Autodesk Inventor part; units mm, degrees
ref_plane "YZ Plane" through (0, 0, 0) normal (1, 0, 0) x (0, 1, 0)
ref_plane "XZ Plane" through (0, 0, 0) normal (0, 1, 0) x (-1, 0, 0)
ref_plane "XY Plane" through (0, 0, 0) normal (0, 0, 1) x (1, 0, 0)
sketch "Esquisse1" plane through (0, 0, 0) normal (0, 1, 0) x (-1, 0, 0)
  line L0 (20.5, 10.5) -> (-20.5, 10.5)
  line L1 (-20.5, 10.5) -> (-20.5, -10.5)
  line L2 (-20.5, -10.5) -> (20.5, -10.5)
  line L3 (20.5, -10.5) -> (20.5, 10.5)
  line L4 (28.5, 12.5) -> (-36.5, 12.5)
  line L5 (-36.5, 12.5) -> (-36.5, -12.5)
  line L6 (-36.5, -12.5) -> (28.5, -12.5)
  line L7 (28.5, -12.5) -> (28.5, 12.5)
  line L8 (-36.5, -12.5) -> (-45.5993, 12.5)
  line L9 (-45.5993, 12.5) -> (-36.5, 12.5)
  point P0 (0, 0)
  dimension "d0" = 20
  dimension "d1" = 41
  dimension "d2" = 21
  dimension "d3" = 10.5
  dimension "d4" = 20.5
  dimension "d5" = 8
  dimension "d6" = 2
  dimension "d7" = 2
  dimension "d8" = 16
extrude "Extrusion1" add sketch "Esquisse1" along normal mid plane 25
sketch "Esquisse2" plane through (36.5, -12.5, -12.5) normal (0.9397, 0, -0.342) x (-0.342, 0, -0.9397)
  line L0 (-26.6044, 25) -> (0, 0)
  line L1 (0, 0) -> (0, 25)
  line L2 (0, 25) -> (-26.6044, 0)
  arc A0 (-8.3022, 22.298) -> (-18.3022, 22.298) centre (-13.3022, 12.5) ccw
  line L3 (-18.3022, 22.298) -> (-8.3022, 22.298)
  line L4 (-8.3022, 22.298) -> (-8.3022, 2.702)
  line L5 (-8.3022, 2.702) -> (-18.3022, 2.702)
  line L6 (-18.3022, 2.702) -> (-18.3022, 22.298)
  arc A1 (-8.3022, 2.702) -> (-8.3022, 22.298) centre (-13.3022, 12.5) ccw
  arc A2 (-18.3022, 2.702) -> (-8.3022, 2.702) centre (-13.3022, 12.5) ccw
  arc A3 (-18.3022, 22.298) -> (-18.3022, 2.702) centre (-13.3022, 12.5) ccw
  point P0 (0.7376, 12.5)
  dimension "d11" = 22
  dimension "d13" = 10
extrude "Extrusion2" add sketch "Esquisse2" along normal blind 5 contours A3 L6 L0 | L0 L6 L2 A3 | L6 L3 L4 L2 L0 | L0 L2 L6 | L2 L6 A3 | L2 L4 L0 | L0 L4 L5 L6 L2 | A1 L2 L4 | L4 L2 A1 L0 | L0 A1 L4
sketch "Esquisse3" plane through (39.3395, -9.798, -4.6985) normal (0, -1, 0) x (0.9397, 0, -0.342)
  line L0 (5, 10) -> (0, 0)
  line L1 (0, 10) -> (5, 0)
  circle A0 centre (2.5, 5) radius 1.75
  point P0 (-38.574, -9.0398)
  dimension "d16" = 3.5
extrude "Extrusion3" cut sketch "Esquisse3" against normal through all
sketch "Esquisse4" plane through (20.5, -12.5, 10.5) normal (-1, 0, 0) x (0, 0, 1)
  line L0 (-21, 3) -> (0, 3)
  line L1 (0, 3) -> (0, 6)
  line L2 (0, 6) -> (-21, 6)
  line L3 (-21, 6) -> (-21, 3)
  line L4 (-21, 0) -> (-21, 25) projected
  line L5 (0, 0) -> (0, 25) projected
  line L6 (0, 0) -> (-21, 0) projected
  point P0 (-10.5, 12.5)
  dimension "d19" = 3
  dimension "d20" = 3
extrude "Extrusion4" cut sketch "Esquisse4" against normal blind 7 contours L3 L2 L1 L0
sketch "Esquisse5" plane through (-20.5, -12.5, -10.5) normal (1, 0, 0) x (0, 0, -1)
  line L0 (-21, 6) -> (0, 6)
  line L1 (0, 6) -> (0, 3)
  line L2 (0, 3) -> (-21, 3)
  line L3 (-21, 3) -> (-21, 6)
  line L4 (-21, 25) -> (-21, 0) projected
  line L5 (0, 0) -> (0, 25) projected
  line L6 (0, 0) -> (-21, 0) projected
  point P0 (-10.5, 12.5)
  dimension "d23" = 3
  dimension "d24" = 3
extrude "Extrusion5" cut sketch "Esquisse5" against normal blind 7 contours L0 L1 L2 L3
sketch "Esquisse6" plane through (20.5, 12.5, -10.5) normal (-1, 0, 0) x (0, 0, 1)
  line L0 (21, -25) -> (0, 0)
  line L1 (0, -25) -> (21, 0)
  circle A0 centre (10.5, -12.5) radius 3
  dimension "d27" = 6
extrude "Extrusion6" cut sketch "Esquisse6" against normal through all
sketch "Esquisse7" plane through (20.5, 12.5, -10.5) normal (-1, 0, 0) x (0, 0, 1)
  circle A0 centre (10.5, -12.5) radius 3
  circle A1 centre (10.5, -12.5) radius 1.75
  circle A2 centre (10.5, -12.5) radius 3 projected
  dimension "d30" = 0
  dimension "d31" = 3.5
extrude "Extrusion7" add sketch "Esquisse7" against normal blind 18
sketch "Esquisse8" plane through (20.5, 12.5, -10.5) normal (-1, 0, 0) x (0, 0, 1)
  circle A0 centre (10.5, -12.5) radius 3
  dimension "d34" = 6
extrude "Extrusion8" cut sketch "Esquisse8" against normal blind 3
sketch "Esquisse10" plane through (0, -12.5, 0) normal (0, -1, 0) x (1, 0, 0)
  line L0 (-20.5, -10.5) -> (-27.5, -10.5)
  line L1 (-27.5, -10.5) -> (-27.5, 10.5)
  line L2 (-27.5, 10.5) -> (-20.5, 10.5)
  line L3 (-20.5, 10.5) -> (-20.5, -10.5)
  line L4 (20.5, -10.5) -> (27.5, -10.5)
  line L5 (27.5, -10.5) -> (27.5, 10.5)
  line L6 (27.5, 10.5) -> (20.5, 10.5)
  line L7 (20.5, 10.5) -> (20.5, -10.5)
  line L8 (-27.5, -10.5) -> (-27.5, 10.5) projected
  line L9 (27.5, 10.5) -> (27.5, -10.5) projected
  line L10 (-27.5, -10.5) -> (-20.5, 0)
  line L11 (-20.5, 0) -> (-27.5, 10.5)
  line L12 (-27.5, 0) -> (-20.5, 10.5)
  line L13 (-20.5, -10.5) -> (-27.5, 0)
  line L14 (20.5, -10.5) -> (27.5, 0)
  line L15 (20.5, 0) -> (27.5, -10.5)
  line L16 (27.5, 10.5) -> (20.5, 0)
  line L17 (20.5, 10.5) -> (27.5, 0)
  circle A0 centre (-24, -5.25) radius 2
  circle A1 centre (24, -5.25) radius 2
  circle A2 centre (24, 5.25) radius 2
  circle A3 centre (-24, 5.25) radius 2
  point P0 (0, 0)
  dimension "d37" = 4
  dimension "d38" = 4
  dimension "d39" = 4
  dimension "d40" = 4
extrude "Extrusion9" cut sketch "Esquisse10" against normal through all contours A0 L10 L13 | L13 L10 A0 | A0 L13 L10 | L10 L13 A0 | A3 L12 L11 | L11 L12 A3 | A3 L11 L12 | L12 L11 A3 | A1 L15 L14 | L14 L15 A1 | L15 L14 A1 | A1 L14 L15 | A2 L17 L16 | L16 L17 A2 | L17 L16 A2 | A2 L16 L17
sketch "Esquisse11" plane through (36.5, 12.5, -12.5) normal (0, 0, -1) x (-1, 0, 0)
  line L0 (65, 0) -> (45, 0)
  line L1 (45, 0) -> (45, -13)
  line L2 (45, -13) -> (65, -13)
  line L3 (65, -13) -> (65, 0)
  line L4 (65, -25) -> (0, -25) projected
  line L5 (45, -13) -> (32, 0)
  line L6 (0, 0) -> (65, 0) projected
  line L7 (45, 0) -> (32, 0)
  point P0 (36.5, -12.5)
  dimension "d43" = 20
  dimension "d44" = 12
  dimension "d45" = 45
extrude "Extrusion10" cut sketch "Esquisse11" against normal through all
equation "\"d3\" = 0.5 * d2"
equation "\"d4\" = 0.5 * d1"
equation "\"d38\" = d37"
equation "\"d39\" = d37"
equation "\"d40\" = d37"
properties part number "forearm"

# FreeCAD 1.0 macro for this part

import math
import FreeCAD as App
import Part
import Sketcher
Q = App.Units.Quantity


def add_polygon(sketch, points):
    """Adds a closed chain of lines whose ends are joined by coincident constraints."""
    first, n = sketch.GeometryCount, len(points)
    for a, b in zip(points, points[1:] + points[:1]):
        sketch.addGeometry(Part.LineSegment(App.Vector(*a, 0), App.Vector(*b, 0)), False)
    for i in range(n):
        sketch.addConstraint(Sketcher.Constraint("Coincident", first + i, 2, first + (i + 1) % n, 1))

doc = App.newDocument("Part")
body = doc.addObject("PartDesign::Body", "Body")

sketch1 = body.newObject("Sketcher::SketchObject", "Sketch")
sketch1.AttachmentSupport = (doc.getObject("XZ_Plane"), [""])
sketch1.MapMode = "FlatFace"
add_polygon(sketch1, [(-28, -12), (-28, 12), (46, 12), (36, -12)])
add_polygon(sketch1, [(20, 10), (-20, 10), (-20, -10), (20, -10)])
sketch1.addConstraint([
    Sketcher.Constraint("Vertical", 0),
    Sketcher.Constraint("Horizontal", 1),
    Sketcher.Constraint("Horizontal", 3),
    Sketcher.Constraint("Horizontal", 4),
    Sketcher.Constraint("Vertical", 5),
    Sketcher.Constraint("Horizontal", 6),
    Sketcher.Constraint("Vertical", 7),
    Sketcher.Constraint("Symmetric", 4, 2, 6, 2, -1, 1),
    Sketcher.Constraint("DistanceX", 4, 2, 4, 1, Q("41 mm")),
    Sketcher.Constraint("DistanceY", 5, 2, 5, 1, Q("21 mm")),
    Sketcher.Constraint("DistanceX", 0, 2, 4, 2, Q("8 mm")),
    Sketcher.Constraint("DistanceY", 4, 2, 0, 2, Q("2 mm")),
    Sketcher.Constraint("DistanceY", 3, 2, 5, 2, Q("2 mm")),
    Sketcher.Constraint("DistanceX", 6, 2, 2, 2, Q("16 mm")),
    Sketcher.Constraint("Angle", 2, Q("-110 deg")),
])
pad1 = body.newObject("PartDesign::Pad", "Pad")
pad1.Profile = sketch1
pad1.Length = 25
pad1.Midplane = True

sketch2 = body.newObject("Sketcher::SketchObject", "Sketch001")
sketch2.Placement = App.Placement(App.Vector(36.5, -12.5, -12.5), App.Rotation(App.Vector(-0.342020143, 0, -0.939692621), App.Vector(0, 1, 0), App.Vector(0.939692621, 0, -0.342020143), "ZXY"))
sketch2.addGeometry([
    Part.ArcOfCircle(Part.Circle(App.Vector(-13, 13, 0), App.Vector(0, 0, 1), 11), math.radians(117), math.radians(243)),
    Part.LineSegment(App.Vector(-18, 3, 0), App.Vector(-8, 3, 0)),
    Part.ArcOfCircle(Part.Circle(App.Vector(-13, 13, 0), App.Vector(0, 0, 1), 11), math.radians(-63), math.radians(63)),
    Part.LineSegment(App.Vector(-8, 22, 0), App.Vector(-18, 22, 0)),
], False)
sketch2.addConstraint([
    Sketcher.Constraint("Coincident", 0, 2, 1, 1),
    Sketcher.Constraint("Coincident", 1, 2, 2, 1),
    Sketcher.Constraint("Coincident", 2, 2, 3, 1),
    Sketcher.Constraint("Coincident", 3, 2, 0, 1),
    Sketcher.Constraint("Horizontal", 1),
    Sketcher.Constraint("Horizontal", 3),
    Sketcher.Constraint("Coincident", 2, 3, 0, 3),
    Sketcher.Constraint("Equal", 0, 2),
    Sketcher.Constraint("Vertical", 1, 2, 2, 2),
    Sketcher.Constraint("Radius", 0, Q("11 mm")),
    Sketcher.Constraint("DistanceX", 1, 1, 1, 2, Q("10 mm")),
    Sketcher.Constraint("DistanceY", -1, 1, 0, 3, Q("12.5 mm")),
    Sketcher.Constraint("DistanceX", 0, 3, -1, 1, Q("13.3022 mm")),
])
pad2 = body.newObject("PartDesign::Pad", "Pad001")
pad2.Profile = sketch2
pad2.Length = 5

sketch3 = body.newObject("Sketcher::SketchObject", "Sketch002")
sketch3.AttachmentSupport = (doc.getObject("XZ_Plane"), [""])
sketch3.MapMode = "FlatFace"
sketch3.AttachmentOffset = App.Placement(App.Vector(0, 0, 9.798), App.Rotation())
sketch3.addGeometry(Part.Circle(App.Vector(43.4, -0.9, 0), App.Vector(0, 0, 1), 1.8), False)
sketch3.addConstraint([
    Sketcher.Constraint("Diameter", 0, Q("3.5 mm")),
    Sketcher.Constraint("DistanceY", 0, 3, -1, 1, Q("0.855 mm")),
    Sketcher.Constraint("DistanceX", -1, 1, 0, 3, Q("43.3988 mm")),
])
pocket1 = body.newObject("PartDesign::Pocket", "Pocket")
pocket1.Profile = sketch3
pocket1.Type = "ThroughAll"

sketch4 = body.newObject("Sketcher::SketchObject", "Sketch003")
sketch4.AttachmentSupport = (doc.getObject("YZ_Plane"), [""])
sketch4.MapMode = "FlatFace"
sketch4.AttachmentOffset = App.Placement(App.Vector(0, 0, 20.5), App.Rotation())
add_polygon(sketch4, [(-6.5, -10.5), (-9.5, -10.5), (-9.5, 10.5), (-6.5, 10.5)])
sketch4.addConstraint([
    Sketcher.Constraint("Horizontal", 0),
    Sketcher.Constraint("Vertical", 1),
    Sketcher.Constraint("Horizontal", 2),
    Sketcher.Constraint("Vertical", 3),
    Sketcher.Constraint("DistanceX", 0, 2, 0, 1, Q("3 mm")),
    Sketcher.Constraint("DistanceY", 1, 1, 1, 2, Q("21 mm")),
    Sketcher.Constraint("DistanceX", 0, 2, -1, 1, Q("9.5 mm")),
    Sketcher.Constraint("DistanceY", 0, 2, -1, 1, Q("10.5 mm")),
])
pocket2 = body.newObject("PartDesign::Pocket", "Pocket001")
pocket2.Profile = sketch4
pocket2.Length = 7
pocket2.Reversed = True

sketch5 = body.newObject("Sketcher::SketchObject", "Sketch004")
sketch5.AttachmentSupport = (doc.getObject("YZ_Plane"), [""])
sketch5.MapMode = "FlatFace"
sketch5.AttachmentOffset = App.Placement(App.Vector(0, 0, -20.5), App.Rotation())
add_polygon(sketch5, [(-6.5, -10.5), (-6.5, 10.5), (-9.5, 10.5), (-9.5, -10.5)])
sketch5.addConstraint([
    Sketcher.Constraint("Vertical", 0),
    Sketcher.Constraint("Horizontal", 1),
    Sketcher.Constraint("Vertical", 2),
    Sketcher.Constraint("Horizontal", 3),
    Sketcher.Constraint("DistanceX", 1, 2, 1, 1, Q("3 mm")),
    Sketcher.Constraint("DistanceY", 0, 1, 0, 2, Q("21 mm")),
    Sketcher.Constraint("DistanceX", 0, 2, -1, 1, Q("6.5 mm")),
    Sketcher.Constraint("DistanceY", -1, 1, 0, 2, Q("10.5 mm")),
])
pocket3 = body.newObject("PartDesign::Pocket", "Pocket002")
pocket3.Profile = sketch5
pocket3.Length = 7

sketch6 = body.newObject("Sketcher::SketchObject", "Sketch005")
sketch6.AttachmentSupport = (doc.getObject("YZ_Plane"), [""])
sketch6.MapMode = "FlatFace"
sketch6.AttachmentOffset = App.Placement(App.Vector(0, 0, 20.5), App.Rotation())
sketch6.addGeometry(Part.Circle(App.Vector(0, 0, 0), App.Vector(0, 0, 1), 3), False)
sketch6.addConstraint([
    Sketcher.Constraint("Coincident", 0, 3, -1, 1),
    Sketcher.Constraint("Diameter", 0, Q("6 mm")),
])
pocket4 = body.newObject("PartDesign::Pocket", "Pocket003")
pocket4.Profile = sketch6
pocket4.Type = "ThroughAll"
pocket4.Reversed = True

sketch7 = body.newObject("Sketcher::SketchObject", "Sketch006")
sketch7.AttachmentSupport = (doc.getObject("YZ_Plane"), [""])
sketch7.MapMode = "FlatFace"
sketch7.AttachmentOffset = App.Placement(App.Vector(0, 0, 20.5), App.Rotation())
sketch7.addGeometry([
    Part.Circle(App.Vector(0, 0, 0), App.Vector(0, 0, 1), 3),
    Part.Circle(App.Vector(0, 0, 0), App.Vector(0, 0, 1), 1.8),
], False)
sketch7.addConstraint([
    Sketcher.Constraint("Coincident", 0, 3, -1, 1),
    Sketcher.Constraint("Coincident", 1, 3, -1, 1),
    Sketcher.Constraint("Diameter", 1, Q("3.5 mm")),
    Sketcher.Constraint("Diameter", 0, Q("6 mm")),
])
pad3 = body.newObject("PartDesign::Pad", "Pad002")
pad3.Profile = sketch7
pad3.Length = 18

sketch8 = body.newObject("Sketcher::SketchObject", "Sketch007")
sketch8.AttachmentSupport = (doc.getObject("YZ_Plane"), [""])
sketch8.MapMode = "FlatFace"
sketch8.AttachmentOffset = App.Placement(App.Vector(0, 0, 20.5), App.Rotation())
sketch8.addGeometry(Part.Circle(App.Vector(0, 0, 0), App.Vector(0, 0, 1), 3), False)
sketch8.addConstraint([
    Sketcher.Constraint("Coincident", 0, 3, -1, 1),
    Sketcher.Constraint("Diameter", 0, Q("6 mm")),
])
pocket5 = body.newObject("PartDesign::Pocket", "Pocket004")
pocket5.Profile = sketch8
pocket5.Length = 3
pocket5.Reversed = True

sketch9 = body.newObject("Sketcher::SketchObject", "Sketch008")
sketch9.AttachmentSupport = (doc.getObject("XZ_Plane"), [""])
sketch9.MapMode = "FlatFace"
sketch9.AttachmentOffset = App.Placement(App.Vector(0, 0, 12.5), App.Rotation())
sketch9.addGeometry([
    Part.Circle(App.Vector(-24, -5.2, 0), App.Vector(0, 0, 1), 2),
    Part.Circle(App.Vector(-24, 5.2, 0), App.Vector(0, 0, 1), 2),
    Part.Circle(App.Vector(24, -5.2, 0), App.Vector(0, 0, 1), 2),
    Part.Circle(App.Vector(24, 5.2, 0), App.Vector(0, 0, 1), 2),
], False)
sketch9.addConstraint([
    Sketcher.Constraint("Equal", 0, 1),
    Sketcher.Constraint("Equal", 1, 2),
    Sketcher.Constraint("Equal", 2, 3),
    Sketcher.Constraint("Symmetric", 1, 3, 2, 3, -1, 1),
    Sketcher.Constraint("Symmetric", 0, 3, 3, 3, -1, 1),
    Sketcher.Constraint("Symmetric", 0, 3, 2, 3, -2),
    Sketcher.Constraint("Diameter", 0, Q("4 mm")),
    Sketcher.Constraint("DistanceX", 0, 3, -1, 1, Q("24 mm")),
    Sketcher.Constraint("DistanceY", 0, 3, 1, 3, Q("10.5 mm")),
])
pocket6 = body.newObject("PartDesign::Pocket", "Pocket005")
pocket6.Profile = sketch9
pocket6.Type = "ThroughAll"

sketch10 = body.newObject("Sketcher::SketchObject", "Sketch009")
sketch10.AttachmentSupport = (doc.getObject("XY_Plane"), [""])
sketch10.MapMode = "FlatFace"
sketch10.AttachmentOffset = App.Placement(App.Vector(0, 0, -12.5), App.Rotation())
add_polygon(sketch10, [(-28, 0), (-28, 12), (4, 12), (-8, 0)])
sketch10.addConstraint([
    Sketcher.Constraint("Vertical", 0),
    Sketcher.Constraint("Horizontal", 1),
    Sketcher.Constraint("Horizontal", 3),
    Sketcher.Constraint("DistanceX", 3, 2, 3, 1, Q("20 mm")),
    Sketcher.Constraint("DistanceX", 1, 1, 1, 2, Q("33 mm")),
    Sketcher.Constraint("DistanceY", 0, 1, 0, 2, Q("13 mm")),
    Sketcher.Constraint("DistanceX", 0, 2, -1, 1, Q("28.5 mm")),
    Sketcher.Constraint("DistanceY", -1, 1, 0, 2, Q("12.5 mm")),
])
pocket7 = body.newObject("PartDesign::Pocket", "Pocket006")
pocket7.Profile = sketch10
pocket7.Type = "ThroughAll"
pocket7.Reversed = True

doc.recompute()
